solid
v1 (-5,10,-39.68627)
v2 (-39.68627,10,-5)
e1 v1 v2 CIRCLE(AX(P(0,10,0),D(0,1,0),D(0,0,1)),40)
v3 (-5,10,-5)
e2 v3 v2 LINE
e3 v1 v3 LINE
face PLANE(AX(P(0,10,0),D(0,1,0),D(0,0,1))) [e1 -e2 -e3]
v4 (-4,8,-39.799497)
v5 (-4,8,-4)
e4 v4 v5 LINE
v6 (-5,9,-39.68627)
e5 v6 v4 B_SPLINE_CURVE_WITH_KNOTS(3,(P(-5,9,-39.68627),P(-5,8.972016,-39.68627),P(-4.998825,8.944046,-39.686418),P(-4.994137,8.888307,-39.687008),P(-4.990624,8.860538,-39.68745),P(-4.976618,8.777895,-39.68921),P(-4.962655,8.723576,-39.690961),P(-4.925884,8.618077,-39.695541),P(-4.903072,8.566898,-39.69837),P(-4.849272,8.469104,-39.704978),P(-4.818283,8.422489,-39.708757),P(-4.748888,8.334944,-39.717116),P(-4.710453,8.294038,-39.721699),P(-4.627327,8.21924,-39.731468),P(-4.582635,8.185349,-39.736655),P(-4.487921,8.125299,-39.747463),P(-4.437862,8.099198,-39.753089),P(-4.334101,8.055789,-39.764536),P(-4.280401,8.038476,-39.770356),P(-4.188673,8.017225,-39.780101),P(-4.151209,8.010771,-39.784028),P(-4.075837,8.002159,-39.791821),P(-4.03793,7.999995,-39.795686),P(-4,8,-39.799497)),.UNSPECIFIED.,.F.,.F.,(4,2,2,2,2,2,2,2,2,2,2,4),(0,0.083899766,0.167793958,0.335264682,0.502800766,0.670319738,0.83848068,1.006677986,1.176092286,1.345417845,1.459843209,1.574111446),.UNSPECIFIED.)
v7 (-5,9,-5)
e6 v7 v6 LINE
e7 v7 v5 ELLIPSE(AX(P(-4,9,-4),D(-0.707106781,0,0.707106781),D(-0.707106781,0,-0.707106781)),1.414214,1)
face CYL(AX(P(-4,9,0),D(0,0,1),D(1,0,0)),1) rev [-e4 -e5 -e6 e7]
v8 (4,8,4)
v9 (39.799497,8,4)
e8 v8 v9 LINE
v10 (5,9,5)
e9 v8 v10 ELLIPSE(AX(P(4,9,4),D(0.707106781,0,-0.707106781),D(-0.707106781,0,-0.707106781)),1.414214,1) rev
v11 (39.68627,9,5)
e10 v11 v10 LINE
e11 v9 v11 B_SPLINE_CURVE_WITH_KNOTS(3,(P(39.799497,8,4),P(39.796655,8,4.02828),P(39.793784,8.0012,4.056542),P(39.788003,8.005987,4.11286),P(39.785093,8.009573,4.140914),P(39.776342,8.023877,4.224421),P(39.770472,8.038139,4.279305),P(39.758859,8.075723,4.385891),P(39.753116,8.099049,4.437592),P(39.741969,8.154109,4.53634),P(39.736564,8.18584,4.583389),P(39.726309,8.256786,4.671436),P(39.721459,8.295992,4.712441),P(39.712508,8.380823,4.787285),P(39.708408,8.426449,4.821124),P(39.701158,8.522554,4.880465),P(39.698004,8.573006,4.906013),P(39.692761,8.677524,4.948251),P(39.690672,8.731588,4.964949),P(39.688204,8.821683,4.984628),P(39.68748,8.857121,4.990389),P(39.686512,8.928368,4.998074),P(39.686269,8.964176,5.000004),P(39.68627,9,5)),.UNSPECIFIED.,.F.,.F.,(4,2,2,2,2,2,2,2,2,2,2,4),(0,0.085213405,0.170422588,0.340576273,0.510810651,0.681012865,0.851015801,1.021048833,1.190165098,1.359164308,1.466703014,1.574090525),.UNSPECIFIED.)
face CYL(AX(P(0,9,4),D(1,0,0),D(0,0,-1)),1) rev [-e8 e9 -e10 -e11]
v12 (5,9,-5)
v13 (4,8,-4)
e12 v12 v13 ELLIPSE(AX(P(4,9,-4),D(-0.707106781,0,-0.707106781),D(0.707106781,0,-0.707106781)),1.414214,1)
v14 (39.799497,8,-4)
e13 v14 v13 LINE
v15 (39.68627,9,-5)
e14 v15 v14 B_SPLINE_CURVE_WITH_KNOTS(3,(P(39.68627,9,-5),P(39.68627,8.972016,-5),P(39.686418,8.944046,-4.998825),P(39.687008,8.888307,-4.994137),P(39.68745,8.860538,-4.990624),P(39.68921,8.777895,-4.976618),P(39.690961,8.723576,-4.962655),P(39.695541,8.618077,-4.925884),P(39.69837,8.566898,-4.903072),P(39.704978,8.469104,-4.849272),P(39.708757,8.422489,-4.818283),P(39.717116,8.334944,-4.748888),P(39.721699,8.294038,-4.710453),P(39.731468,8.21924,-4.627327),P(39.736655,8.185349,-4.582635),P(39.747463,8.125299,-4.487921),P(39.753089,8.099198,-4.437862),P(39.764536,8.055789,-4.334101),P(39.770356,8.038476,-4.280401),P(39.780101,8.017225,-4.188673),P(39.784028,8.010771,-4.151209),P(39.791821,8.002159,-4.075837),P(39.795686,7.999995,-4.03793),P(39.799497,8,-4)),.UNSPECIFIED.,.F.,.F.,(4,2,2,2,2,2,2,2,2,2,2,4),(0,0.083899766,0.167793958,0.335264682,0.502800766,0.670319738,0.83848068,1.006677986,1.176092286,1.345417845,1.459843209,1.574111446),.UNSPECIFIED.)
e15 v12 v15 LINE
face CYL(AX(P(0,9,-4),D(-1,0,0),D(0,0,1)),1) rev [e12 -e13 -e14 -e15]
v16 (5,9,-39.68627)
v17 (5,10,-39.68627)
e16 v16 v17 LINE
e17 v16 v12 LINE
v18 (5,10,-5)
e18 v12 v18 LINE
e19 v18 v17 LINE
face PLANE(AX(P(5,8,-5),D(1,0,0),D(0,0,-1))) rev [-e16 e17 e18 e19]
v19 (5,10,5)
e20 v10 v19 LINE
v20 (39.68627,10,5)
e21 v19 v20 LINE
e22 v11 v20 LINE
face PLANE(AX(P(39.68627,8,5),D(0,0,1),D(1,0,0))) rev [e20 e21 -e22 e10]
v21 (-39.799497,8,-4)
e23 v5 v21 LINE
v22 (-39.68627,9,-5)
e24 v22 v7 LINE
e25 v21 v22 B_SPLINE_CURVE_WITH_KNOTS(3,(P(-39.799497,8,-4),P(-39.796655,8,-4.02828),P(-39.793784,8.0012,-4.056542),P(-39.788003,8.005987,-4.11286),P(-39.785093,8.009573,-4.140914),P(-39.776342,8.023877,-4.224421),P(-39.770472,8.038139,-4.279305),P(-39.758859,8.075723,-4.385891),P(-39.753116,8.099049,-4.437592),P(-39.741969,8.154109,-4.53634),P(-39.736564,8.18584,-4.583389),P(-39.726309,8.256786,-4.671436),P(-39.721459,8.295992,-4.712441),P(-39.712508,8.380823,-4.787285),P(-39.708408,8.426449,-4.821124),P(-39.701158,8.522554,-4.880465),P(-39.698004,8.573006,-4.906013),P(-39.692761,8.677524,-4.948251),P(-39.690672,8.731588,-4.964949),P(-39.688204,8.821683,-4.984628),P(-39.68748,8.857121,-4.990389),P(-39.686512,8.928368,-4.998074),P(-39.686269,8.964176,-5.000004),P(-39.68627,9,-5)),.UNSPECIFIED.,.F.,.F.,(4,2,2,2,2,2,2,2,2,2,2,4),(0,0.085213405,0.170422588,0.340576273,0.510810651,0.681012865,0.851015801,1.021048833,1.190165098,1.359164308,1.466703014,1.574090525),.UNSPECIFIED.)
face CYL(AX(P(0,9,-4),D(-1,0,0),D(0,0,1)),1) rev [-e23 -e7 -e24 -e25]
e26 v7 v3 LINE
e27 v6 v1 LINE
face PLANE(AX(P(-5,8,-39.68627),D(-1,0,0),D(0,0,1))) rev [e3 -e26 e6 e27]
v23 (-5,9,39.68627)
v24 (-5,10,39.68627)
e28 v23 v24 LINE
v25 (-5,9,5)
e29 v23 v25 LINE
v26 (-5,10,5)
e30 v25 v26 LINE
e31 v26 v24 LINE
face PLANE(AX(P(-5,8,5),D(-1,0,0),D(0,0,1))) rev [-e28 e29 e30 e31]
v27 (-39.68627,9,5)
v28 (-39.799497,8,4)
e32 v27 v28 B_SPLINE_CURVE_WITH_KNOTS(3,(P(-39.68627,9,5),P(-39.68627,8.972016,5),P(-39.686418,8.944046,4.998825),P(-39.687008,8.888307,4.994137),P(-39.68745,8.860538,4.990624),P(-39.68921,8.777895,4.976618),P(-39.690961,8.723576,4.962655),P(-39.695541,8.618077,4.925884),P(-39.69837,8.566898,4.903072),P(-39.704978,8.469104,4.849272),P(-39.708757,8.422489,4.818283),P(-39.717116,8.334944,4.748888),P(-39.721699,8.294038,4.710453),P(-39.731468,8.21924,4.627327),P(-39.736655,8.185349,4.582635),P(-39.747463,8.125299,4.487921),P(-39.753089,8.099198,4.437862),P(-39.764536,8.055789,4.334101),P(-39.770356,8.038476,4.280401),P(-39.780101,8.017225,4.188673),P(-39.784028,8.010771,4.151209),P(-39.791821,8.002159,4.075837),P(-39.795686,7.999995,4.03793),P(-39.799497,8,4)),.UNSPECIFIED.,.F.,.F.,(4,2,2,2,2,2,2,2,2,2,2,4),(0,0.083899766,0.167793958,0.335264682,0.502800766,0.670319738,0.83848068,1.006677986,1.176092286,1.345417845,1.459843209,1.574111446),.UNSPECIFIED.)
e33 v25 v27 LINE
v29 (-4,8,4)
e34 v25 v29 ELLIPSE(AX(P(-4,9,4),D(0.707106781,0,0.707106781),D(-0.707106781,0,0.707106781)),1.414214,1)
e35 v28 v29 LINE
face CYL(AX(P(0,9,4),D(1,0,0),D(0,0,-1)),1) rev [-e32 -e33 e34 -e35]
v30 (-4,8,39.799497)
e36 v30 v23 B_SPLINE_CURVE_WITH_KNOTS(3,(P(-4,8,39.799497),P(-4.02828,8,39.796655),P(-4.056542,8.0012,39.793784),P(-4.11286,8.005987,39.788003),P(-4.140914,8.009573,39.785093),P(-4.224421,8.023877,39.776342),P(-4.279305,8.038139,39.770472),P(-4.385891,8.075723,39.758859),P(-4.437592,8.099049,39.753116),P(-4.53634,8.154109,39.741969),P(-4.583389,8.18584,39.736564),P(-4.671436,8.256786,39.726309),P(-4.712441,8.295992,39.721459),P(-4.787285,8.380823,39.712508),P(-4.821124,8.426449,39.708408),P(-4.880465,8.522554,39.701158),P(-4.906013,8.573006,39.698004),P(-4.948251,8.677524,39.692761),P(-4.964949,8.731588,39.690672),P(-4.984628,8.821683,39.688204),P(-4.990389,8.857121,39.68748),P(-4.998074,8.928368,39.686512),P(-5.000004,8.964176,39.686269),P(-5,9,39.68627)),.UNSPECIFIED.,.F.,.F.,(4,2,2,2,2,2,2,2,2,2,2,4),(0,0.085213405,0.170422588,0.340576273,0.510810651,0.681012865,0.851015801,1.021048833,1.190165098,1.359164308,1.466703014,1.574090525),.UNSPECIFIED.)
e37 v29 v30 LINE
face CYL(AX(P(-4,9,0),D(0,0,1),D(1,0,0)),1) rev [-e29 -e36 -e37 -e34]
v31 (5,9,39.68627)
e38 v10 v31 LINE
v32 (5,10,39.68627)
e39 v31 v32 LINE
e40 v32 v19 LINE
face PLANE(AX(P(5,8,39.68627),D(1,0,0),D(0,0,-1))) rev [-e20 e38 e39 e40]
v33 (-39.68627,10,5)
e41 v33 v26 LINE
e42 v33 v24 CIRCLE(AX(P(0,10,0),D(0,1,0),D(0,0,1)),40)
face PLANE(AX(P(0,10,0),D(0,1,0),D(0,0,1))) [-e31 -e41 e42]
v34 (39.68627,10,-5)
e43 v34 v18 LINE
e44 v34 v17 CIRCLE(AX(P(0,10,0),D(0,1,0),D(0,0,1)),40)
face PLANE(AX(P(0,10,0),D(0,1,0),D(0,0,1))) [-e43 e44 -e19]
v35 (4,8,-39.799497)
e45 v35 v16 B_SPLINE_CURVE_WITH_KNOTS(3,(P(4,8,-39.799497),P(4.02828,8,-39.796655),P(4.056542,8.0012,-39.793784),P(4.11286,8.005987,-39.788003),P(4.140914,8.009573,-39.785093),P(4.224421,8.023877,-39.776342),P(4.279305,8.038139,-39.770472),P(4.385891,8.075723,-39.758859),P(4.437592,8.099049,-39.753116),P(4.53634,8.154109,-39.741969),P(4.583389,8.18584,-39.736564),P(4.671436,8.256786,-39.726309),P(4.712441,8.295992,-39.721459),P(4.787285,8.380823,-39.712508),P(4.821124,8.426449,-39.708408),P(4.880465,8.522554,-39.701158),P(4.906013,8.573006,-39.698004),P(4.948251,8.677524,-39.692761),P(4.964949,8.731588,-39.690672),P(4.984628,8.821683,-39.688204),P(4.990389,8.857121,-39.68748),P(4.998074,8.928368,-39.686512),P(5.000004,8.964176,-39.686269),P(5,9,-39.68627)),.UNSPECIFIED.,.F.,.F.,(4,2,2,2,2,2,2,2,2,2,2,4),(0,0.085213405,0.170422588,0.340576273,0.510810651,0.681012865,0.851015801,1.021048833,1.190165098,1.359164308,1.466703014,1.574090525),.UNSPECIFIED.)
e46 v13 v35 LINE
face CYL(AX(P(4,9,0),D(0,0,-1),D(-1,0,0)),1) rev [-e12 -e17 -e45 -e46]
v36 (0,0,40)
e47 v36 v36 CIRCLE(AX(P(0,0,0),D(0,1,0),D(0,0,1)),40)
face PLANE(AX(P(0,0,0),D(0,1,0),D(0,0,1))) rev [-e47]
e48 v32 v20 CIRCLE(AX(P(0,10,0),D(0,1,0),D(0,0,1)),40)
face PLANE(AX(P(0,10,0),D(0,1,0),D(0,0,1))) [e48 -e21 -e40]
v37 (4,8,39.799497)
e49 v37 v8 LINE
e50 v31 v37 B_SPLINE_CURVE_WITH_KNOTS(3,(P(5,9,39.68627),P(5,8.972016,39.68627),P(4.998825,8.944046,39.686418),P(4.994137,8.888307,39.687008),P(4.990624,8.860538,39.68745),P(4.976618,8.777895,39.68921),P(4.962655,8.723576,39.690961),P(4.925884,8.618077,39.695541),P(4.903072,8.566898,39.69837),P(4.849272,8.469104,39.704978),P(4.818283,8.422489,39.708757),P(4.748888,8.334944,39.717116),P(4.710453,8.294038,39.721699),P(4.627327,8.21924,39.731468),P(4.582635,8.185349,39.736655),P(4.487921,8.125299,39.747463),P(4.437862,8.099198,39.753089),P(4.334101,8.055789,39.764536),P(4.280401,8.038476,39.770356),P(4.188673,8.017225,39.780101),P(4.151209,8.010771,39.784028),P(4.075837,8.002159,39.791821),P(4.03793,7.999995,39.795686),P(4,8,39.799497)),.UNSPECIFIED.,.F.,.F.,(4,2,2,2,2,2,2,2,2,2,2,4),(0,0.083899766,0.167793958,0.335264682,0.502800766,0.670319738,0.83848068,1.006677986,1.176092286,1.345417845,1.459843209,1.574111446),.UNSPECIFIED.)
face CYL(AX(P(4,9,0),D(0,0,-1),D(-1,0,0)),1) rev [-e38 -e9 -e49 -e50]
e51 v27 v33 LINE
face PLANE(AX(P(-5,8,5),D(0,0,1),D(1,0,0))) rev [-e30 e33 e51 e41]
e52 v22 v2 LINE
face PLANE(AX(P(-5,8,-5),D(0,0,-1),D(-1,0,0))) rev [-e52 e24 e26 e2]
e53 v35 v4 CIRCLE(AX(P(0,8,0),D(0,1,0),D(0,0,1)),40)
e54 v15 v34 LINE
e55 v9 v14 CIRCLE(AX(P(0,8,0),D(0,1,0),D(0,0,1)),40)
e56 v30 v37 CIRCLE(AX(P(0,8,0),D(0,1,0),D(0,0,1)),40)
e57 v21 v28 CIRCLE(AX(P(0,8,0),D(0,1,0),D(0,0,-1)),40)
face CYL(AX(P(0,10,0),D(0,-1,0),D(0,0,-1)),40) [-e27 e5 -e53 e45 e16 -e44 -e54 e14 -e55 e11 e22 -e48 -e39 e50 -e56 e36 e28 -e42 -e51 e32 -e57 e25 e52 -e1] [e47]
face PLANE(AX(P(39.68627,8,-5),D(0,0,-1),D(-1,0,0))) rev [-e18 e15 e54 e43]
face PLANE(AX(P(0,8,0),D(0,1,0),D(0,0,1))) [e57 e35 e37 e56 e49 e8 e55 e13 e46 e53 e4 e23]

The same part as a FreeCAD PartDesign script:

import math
import FreeCAD as App
import Part
import Sketcher
Q = App.Units.Quantity


def edges_at(feature, points):
    """Names of the edges that pass closest to the given points."""
    edges = feature.Shape.Edges
    near = lambda p: min(range(len(edges)), key=lambda i: edges[i].distToShape(Part.Vertex(*p))[0])
    return sorted({f"Edge{near(p) + 1}" for p in points})

doc = App.newDocument("Part")
params = doc.addObject("Spreadsheet::Sheet", "Params")
for row, (alias, value) in enumerate([
    ("sketch1_diameter", "80 mm"),
    ("pad1_length", "10 mm"),
    ("sketch2_radius", "40 mm"),
    ("pocket1_length", "2 mm"),
    ("fillet_radius", "1 mm"),
], start=1):
    params.set(f"A{row}", alias)
    params.set(f"B{row}", "=" + value)
    params.setAlias(f"B{row}", alias)

body = doc.addObject("PartDesign::Body", "Body")

# Sketch on XZ plane
sketch1 = body.newObject("Sketcher::SketchObject", "Sketch")
sketch1.AttachmentSupport = (doc.getObject("XZ_Plane"), [""])
sketch1.MapMode = "FlatFace"
sketch1.addGeometry(Part.Circle(App.Vector(0, 0, 0), App.Vector(0, 0, 1), 40), False)
sketch1.addConstraint(Sketcher.Constraint("Coincident", 0, 3, -1, 1))
sketch1.addConstraint(Sketcher.Constraint("Diameter", 0, Q("80 mm")))
sketch1.setExpression("Constraints[1]", "Params.sketch1_diameter")
pad1 = body.newObject("PartDesign::Pad", "Pad")
pad1.Profile = sketch1
pad1.setExpression("Length", "Params.pad1_length")
pad1.Reversed = True

# Sketch on XZ plane
sketch2 = body.newObject("Sketcher::SketchObject", "Sketch001")
sketch2.AttachmentSupport = (doc.getObject("XZ_Plane"), [""])
sketch2.MapMode = "FlatFace"
sketch2.AttachmentOffset = App.Placement(App.Vector(0, 0, -10), App.Rotation())
sketch2.addGeometry(Part.LineSegment(App.Vector(-5, -39.68627, 0), App.Vector(-5, -5, 0)), False)
sketch2.addGeometry(Part.LineSegment(App.Vector(-5, -5, 0), App.Vector(-39.68627, -5, 0)), False)
sketch2.addGeometry(Part.ArcOfCircle(Part.Circle(App.Vector(0, 0, 0), App.Vector(0, 0, 1), 40), math.radians(172.819244), math.radians(187.180756)), False)
sketch2.addGeometry(Part.LineSegment(App.Vector(-39.68627, 5, 0), App.Vector(-5, 5, 0)), False)
sketch2.addGeometry(Part.LineSegment(App.Vector(-5, 5, 0), App.Vector(-5, 39.68627, 0)), False)
sketch2.addGeometry(Part.ArcOfCircle(Part.Circle(App.Vector(0, 0, 0), App.Vector(0, 0, 1), 40), math.radians(82.819244), math.radians(97.180756)), False)
sketch2.addGeometry(Part.LineSegment(App.Vector(5, 39.68627, 0), App.Vector(5, 5, 0)), False)
sketch2.addGeometry(Part.LineSegment(App.Vector(5, 5, 0), App.Vector(39.68627, 5, 0)), False)
sketch2.addGeometry(Part.ArcOfCircle(Part.Circle(App.Vector(0, 0, 0), App.Vector(0, 0, 1), 40), math.radians(-7.180756), math.radians(7.180756)), False)
sketch2.addGeometry(Part.LineSegment(App.Vector(39.68627, -5, 0), App.Vector(5, -5, 0)), False)
sketch2.addGeometry(Part.LineSegment(App.Vector(5, -5, 0), App.Vector(5, -39.68627, 0)), False)
sketch2.addGeometry(Part.ArcOfCircle(Part.Circle(App.Vector(0, 0, 0), App.Vector(0, 0, 1), 40), math.radians(-97.180756), math.radians(-82.819244)), False)
sketch2.addConstraint(Sketcher.Constraint("Coincident", 0, 2, 1, 1))
sketch2.addConstraint(Sketcher.Constraint("Coincident", 1, 2, 2, 2))
sketch2.addConstraint(Sketcher.Constraint("Coincident", 2, 1, 3, 1))
sketch2.addConstraint(Sketcher.Constraint("Coincident", 3, 2, 4, 1))
sketch2.addConstraint(Sketcher.Constraint("Coincident", 4, 2, 5, 2))
sketch2.addConstraint(Sketcher.Constraint("Coincident", 5, 1, 6, 1))
sketch2.addConstraint(Sketcher.Constraint("Coincident", 6, 2, 7, 1))
sketch2.addConstraint(Sketcher.Constraint("Coincident", 7, 2, 8, 2))
sketch2.addConstraint(Sketcher.Constraint("Coincident", 8, 1, 9, 1))
sketch2.addConstraint(Sketcher.Constraint("Coincident", 9, 2, 10, 1))
sketch2.addConstraint(Sketcher.Constraint("Coincident", 10, 2, 11, 2))
sketch2.addConstraint(Sketcher.Constraint("Coincident", 11, 1, 0, 1))
sketch2.addConstraint(Sketcher.Constraint("Vertical", 0))
sketch2.addConstraint(Sketcher.Constraint("Horizontal", 1))
sketch2.addConstraint(Sketcher.Constraint("Horizontal", 3))
sketch2.addConstraint(Sketcher.Constraint("Vertical", 4))
sketch2.addConstraint(Sketcher.Constraint("Vertical", 6))
sketch2.addConstraint(Sketcher.Constraint("Horizontal", 7))
sketch2.addConstraint(Sketcher.Constraint("Horizontal", 9))
sketch2.addConstraint(Sketcher.Constraint("Vertical", 10))
sketch2.addConstraint(Sketcher.Constraint("Coincident", 2, 3, -1, 1))
sketch2.addConstraint(Sketcher.Constraint("Coincident", 5, 3, -1, 1))
sketch2.addConstraint(Sketcher.Constraint("Coincident", 8, 3, -1, 1))
sketch2.addConstraint(Sketcher.Constraint("Coincident", 11, 3, -1, 1))
sketch2.addConstraint(Sketcher.Constraint("Equal", 2, 5))
sketch2.addConstraint(Sketcher.Constraint("Equal", 5, 8))
sketch2.addConstraint(Sketcher.Constraint("Equal", 8, 11))
sketch2.addConstraint(Sketcher.Constraint("Symmetric", 0, 2, 6, 2, -1, 1))
sketch2.addConstraint(Sketcher.Constraint("Symmetric", 3, 2, 9, 2, -1, 1))
sketch2.addConstraint(Sketcher.Constraint("Symmetric", 3, 2, 6, 2, -2))
sketch2.addConstraint(Sketcher.Constraint("Equal", 9, 0))
sketch2.addConstraint(Sketcher.Constraint("Radius", 2, Q("40 mm")))
sketch2.addConstraint(Sketcher.Constraint("DistanceX", 0, 2, -1, 1, Q("5 mm")))
sketch2.setExpression("Constraints[31]", "Params.sketch2_radius")
pocket1 = body.newObject("PartDesign::Pocket", "Pocket")
pocket1.Profile = sketch2
pocket1.setExpression("Length", "Params.pocket1_length")
pocket1.Reversed = True
doc.recompute()

fillet = body.newObject("PartDesign::Fillet", "Fillet")
fillet.Base = (pocket1, edges_at(pocket1, [
    (5, 8, -22.343),
    (22.343, 8, -5),
    (22.343, 8, 5),
    (5, 8, 22.343),
    (-5, 8, 22.343),
    (-22.343, 8, 5),
    (-22.343, 8, -5),
    (-5, 8, -22.343),
]))
fillet.setExpression("Radius", "Params.fillet_radius")

doc.recompute()
